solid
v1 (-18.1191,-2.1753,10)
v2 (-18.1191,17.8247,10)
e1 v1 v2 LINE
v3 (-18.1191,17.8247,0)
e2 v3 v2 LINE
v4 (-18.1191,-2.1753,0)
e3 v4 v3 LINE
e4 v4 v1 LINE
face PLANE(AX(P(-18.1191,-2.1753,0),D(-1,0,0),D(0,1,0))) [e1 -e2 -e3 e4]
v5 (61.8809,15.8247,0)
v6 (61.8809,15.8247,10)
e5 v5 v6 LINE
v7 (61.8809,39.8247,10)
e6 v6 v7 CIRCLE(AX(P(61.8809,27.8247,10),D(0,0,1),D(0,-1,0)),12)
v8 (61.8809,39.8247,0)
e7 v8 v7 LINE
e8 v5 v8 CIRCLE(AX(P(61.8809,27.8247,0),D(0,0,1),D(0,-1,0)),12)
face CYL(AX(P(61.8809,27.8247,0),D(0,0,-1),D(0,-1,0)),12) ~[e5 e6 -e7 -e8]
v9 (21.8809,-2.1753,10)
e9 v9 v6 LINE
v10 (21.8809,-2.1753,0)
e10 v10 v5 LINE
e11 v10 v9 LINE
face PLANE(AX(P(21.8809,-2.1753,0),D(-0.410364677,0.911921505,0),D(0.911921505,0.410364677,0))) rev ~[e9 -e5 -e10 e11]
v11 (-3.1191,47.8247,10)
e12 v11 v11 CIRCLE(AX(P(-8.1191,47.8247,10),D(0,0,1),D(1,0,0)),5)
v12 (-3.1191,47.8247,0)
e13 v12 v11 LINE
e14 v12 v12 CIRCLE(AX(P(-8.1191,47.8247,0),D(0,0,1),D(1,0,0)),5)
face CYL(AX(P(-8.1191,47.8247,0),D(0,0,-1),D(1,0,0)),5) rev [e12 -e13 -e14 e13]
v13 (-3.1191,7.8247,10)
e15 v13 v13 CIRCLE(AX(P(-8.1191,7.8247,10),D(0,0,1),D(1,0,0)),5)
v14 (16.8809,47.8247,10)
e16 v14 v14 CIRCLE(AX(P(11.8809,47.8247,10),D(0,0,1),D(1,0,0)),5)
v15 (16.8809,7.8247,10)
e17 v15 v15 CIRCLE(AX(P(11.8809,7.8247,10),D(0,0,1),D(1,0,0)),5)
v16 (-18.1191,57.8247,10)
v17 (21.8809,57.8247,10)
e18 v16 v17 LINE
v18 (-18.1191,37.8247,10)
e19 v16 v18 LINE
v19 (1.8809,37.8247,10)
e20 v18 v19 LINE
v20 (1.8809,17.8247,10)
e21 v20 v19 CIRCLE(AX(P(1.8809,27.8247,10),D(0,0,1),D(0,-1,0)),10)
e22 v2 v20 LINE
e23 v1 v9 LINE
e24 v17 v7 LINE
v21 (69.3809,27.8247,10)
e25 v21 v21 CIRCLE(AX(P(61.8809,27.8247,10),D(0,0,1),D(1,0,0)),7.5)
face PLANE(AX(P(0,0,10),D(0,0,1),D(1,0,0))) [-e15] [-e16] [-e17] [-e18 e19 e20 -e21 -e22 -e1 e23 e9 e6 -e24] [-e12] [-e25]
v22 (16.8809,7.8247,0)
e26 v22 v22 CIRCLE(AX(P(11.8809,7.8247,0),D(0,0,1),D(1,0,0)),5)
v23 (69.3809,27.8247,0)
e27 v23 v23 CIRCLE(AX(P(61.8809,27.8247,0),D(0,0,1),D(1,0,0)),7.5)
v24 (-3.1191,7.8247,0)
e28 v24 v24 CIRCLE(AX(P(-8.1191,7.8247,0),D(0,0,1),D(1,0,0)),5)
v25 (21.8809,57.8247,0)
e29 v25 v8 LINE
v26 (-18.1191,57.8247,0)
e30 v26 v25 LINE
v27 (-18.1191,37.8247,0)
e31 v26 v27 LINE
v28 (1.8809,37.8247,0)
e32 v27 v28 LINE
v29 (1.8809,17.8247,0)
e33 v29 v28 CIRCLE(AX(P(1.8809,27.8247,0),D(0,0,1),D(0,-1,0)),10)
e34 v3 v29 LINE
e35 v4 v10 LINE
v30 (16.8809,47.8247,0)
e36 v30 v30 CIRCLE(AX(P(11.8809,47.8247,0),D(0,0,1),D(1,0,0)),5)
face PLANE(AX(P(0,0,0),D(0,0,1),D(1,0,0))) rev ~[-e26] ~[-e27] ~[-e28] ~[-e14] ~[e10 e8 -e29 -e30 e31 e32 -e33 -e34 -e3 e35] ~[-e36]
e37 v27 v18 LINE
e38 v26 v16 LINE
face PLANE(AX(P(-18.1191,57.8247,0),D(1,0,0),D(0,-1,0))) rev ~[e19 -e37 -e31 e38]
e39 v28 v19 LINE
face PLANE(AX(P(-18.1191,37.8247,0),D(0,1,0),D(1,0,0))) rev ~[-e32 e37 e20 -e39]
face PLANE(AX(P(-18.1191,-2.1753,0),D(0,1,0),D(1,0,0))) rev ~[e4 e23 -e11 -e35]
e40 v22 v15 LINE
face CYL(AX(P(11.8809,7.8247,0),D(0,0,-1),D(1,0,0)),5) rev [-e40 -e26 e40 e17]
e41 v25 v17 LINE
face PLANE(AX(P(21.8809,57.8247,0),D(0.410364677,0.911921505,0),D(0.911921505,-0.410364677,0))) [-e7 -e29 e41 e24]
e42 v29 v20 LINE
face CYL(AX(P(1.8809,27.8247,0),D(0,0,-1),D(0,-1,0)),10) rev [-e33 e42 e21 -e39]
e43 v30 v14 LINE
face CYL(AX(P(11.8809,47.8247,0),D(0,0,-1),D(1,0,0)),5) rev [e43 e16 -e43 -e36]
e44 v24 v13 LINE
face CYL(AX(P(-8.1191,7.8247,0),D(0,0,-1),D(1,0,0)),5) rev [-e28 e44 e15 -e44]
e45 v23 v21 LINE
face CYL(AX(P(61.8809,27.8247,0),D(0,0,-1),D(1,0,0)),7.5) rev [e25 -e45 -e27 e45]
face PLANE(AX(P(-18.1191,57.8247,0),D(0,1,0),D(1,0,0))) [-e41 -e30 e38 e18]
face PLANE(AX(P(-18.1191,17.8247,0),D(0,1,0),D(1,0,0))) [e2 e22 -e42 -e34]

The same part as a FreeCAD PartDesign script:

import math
import FreeCAD as App
import Part
import Sketcher
from FreeCAD import Vector

doc = App.newDocument("Part")
body = doc.addObject("PartDesign::Body", "Body")

sketch1 = doc.addObject("Sketcher::SketchObject", "Sketch")
body.addObject(sketch1)
sketch1.AttachmentSupport = (doc.XY_Plane, [""])
sketch1.MapMode = "FlatFace"
sketch1.addGeometry([
    Part.LineSegment(Vector(-18, 18, 0), Vector(-18, -2, 0)),
    Part.LineSegment(Vector(-18, -2, 0), Vector(22, -2, 0)),
    Part.LineSegment(Vector(22, -2, 0), Vector(62, 16, 0)),
    Part.ArcOfCircle(Part.Circle(Vector(62, 28, 0), Vector(0, 0, 1), 12), math.radians(-90), math.radians(90)),
    Part.LineSegment(Vector(62, 40, 0), Vector(22, 58, 0)),
    Part.LineSegment(Vector(22, 58, 0), Vector(-18, 58, 0)),
    Part.LineSegment(Vector(-18, 58, 0), Vector(-18, 38, 0)),
    Part.LineSegment(Vector(-18, 38, 0), Vector(2, 38, 0)),
    Part.ArcOfCircle(Part.Circle(Vector(2, 28, 0), Vector(0, 0, 1), 10), math.radians(-90), math.radians(90)),
    Part.LineSegment(Vector(2, 18, 0), Vector(-18, 18, 0)),
    Part.Circle(Vector(-8, 8, 0), Vector(0, 0, 1), 5),
    Part.Circle(Vector(12, 8, 0), Vector(0, 0, 1), 5),
    Part.Circle(Vector(-8, 48, 0), Vector(0, 0, 1), 5),
    Part.Circle(Vector(12, 48, 0), Vector(0, 0, 1), 5),
    Part.Circle(Vector(62, 28, 0), Vector(0, 0, 1), 8),
], False)
sketch1.addConstraint([
    Sketcher.Constraint("Coincident", 0, 2, 1, 1),
    Sketcher.Constraint("Coincident", 1, 2, 2, 1),
    Sketcher.Constraint("Coincident", 2, 2, 3, 1),
    Sketcher.Constraint("Coincident", 3, 2, 4, 1),
    Sketcher.Constraint("Coincident", 4, 2, 5, 1),
    Sketcher.Constraint("Coincident", 5, 2, 6, 1),
    Sketcher.Constraint("Coincident", 6, 2, 7, 1),
    Sketcher.Constraint("Tangent", 7, 2, 8, 2),
    Sketcher.Constraint("Tangent", 8, 1, 9, 1),
    Sketcher.Constraint("Coincident", 9, 2, 0, 1),
    Sketcher.Constraint("Vertical", 0),
    Sketcher.Constraint("Horizontal", 1),
    Sketcher.Constraint("Horizontal", 5),
    Sketcher.Constraint("Vertical", 6),
    Sketcher.Constraint("Horizontal", 7),
    Sketcher.Constraint("Horizontal", 9),
    Sketcher.Constraint("Coincident", 14, 3, 3, 3),
    Sketcher.Constraint("Equal", 10, 11),
    Sketcher.Constraint("Equal", 11, 12),
    Sketcher.Constraint("Equal", 12, 13),
    Sketcher.Constraint("Horizontal", 3, 3, 8, 3),
    Sketcher.Constraint("Horizontal", 10, 3, 11, 3),
    Sketcher.Constraint("Horizontal", 12, 3, 13, 3),
    Sketcher.Constraint("Vertical", 10, 3, 12, 3),
    Sketcher.Constraint("Vertical", 11, 3, 13, 3),
    Sketcher.Constraint("Vertical", 14, 3, 2, 2),
    Sketcher.Constraint("Vertical", 2, 2, 3, 2),
    Sketcher.Constraint("Vertical", 1, 2, 4, 2),
    Sketcher.Constraint("Vertical", 0, 2, 5, 2),
    Sketcher.Constraint("Equal", 9, 0),
    Sketcher.Constraint("Equal", 0, 6),
    Sketcher.Constraint("Diameter", 10, 10.0),
    Sketcher.Constraint("Diameter", 14, 15.0),
    Sketcher.Constraint("Radius", 3, 12.0),
    Sketcher.Constraint("Radius", 8, 10.0),
    Sketcher.Constraint("DistanceX", 1, 1, 1, 2, 40.0),
    Sketcher.Constraint("DistanceX", 7, 1, 7, 2, 20.0),
    Sketcher.Constraint("DistanceX", 8, 3, 3, 3, 60.0),
    Sketcher.Constraint("DistanceX", 10, 3, 8, 3, 10.0),
    Sketcher.Constraint("DistanceY", 10, 3, 8, 3, 20.0),
    Sketcher.Constraint("DistanceX", 10, 3, 11, 3, 20.0),
    Sketcher.Constraint("DistanceY", 8, 3, 12, 3, 20.0),
    Sketcher.Constraint("DistanceX", -1, 1, 3, 3, 61.881),
    Sketcher.Constraint("DistanceY", -1, 1, 3, 3, 27.8247),
])
pad1 = doc.addObject("PartDesign::Pad", "Pad")
body.addObject(pad1)
pad1.Profile = sketch1
pad1.Length = 10

doc.recompute()
